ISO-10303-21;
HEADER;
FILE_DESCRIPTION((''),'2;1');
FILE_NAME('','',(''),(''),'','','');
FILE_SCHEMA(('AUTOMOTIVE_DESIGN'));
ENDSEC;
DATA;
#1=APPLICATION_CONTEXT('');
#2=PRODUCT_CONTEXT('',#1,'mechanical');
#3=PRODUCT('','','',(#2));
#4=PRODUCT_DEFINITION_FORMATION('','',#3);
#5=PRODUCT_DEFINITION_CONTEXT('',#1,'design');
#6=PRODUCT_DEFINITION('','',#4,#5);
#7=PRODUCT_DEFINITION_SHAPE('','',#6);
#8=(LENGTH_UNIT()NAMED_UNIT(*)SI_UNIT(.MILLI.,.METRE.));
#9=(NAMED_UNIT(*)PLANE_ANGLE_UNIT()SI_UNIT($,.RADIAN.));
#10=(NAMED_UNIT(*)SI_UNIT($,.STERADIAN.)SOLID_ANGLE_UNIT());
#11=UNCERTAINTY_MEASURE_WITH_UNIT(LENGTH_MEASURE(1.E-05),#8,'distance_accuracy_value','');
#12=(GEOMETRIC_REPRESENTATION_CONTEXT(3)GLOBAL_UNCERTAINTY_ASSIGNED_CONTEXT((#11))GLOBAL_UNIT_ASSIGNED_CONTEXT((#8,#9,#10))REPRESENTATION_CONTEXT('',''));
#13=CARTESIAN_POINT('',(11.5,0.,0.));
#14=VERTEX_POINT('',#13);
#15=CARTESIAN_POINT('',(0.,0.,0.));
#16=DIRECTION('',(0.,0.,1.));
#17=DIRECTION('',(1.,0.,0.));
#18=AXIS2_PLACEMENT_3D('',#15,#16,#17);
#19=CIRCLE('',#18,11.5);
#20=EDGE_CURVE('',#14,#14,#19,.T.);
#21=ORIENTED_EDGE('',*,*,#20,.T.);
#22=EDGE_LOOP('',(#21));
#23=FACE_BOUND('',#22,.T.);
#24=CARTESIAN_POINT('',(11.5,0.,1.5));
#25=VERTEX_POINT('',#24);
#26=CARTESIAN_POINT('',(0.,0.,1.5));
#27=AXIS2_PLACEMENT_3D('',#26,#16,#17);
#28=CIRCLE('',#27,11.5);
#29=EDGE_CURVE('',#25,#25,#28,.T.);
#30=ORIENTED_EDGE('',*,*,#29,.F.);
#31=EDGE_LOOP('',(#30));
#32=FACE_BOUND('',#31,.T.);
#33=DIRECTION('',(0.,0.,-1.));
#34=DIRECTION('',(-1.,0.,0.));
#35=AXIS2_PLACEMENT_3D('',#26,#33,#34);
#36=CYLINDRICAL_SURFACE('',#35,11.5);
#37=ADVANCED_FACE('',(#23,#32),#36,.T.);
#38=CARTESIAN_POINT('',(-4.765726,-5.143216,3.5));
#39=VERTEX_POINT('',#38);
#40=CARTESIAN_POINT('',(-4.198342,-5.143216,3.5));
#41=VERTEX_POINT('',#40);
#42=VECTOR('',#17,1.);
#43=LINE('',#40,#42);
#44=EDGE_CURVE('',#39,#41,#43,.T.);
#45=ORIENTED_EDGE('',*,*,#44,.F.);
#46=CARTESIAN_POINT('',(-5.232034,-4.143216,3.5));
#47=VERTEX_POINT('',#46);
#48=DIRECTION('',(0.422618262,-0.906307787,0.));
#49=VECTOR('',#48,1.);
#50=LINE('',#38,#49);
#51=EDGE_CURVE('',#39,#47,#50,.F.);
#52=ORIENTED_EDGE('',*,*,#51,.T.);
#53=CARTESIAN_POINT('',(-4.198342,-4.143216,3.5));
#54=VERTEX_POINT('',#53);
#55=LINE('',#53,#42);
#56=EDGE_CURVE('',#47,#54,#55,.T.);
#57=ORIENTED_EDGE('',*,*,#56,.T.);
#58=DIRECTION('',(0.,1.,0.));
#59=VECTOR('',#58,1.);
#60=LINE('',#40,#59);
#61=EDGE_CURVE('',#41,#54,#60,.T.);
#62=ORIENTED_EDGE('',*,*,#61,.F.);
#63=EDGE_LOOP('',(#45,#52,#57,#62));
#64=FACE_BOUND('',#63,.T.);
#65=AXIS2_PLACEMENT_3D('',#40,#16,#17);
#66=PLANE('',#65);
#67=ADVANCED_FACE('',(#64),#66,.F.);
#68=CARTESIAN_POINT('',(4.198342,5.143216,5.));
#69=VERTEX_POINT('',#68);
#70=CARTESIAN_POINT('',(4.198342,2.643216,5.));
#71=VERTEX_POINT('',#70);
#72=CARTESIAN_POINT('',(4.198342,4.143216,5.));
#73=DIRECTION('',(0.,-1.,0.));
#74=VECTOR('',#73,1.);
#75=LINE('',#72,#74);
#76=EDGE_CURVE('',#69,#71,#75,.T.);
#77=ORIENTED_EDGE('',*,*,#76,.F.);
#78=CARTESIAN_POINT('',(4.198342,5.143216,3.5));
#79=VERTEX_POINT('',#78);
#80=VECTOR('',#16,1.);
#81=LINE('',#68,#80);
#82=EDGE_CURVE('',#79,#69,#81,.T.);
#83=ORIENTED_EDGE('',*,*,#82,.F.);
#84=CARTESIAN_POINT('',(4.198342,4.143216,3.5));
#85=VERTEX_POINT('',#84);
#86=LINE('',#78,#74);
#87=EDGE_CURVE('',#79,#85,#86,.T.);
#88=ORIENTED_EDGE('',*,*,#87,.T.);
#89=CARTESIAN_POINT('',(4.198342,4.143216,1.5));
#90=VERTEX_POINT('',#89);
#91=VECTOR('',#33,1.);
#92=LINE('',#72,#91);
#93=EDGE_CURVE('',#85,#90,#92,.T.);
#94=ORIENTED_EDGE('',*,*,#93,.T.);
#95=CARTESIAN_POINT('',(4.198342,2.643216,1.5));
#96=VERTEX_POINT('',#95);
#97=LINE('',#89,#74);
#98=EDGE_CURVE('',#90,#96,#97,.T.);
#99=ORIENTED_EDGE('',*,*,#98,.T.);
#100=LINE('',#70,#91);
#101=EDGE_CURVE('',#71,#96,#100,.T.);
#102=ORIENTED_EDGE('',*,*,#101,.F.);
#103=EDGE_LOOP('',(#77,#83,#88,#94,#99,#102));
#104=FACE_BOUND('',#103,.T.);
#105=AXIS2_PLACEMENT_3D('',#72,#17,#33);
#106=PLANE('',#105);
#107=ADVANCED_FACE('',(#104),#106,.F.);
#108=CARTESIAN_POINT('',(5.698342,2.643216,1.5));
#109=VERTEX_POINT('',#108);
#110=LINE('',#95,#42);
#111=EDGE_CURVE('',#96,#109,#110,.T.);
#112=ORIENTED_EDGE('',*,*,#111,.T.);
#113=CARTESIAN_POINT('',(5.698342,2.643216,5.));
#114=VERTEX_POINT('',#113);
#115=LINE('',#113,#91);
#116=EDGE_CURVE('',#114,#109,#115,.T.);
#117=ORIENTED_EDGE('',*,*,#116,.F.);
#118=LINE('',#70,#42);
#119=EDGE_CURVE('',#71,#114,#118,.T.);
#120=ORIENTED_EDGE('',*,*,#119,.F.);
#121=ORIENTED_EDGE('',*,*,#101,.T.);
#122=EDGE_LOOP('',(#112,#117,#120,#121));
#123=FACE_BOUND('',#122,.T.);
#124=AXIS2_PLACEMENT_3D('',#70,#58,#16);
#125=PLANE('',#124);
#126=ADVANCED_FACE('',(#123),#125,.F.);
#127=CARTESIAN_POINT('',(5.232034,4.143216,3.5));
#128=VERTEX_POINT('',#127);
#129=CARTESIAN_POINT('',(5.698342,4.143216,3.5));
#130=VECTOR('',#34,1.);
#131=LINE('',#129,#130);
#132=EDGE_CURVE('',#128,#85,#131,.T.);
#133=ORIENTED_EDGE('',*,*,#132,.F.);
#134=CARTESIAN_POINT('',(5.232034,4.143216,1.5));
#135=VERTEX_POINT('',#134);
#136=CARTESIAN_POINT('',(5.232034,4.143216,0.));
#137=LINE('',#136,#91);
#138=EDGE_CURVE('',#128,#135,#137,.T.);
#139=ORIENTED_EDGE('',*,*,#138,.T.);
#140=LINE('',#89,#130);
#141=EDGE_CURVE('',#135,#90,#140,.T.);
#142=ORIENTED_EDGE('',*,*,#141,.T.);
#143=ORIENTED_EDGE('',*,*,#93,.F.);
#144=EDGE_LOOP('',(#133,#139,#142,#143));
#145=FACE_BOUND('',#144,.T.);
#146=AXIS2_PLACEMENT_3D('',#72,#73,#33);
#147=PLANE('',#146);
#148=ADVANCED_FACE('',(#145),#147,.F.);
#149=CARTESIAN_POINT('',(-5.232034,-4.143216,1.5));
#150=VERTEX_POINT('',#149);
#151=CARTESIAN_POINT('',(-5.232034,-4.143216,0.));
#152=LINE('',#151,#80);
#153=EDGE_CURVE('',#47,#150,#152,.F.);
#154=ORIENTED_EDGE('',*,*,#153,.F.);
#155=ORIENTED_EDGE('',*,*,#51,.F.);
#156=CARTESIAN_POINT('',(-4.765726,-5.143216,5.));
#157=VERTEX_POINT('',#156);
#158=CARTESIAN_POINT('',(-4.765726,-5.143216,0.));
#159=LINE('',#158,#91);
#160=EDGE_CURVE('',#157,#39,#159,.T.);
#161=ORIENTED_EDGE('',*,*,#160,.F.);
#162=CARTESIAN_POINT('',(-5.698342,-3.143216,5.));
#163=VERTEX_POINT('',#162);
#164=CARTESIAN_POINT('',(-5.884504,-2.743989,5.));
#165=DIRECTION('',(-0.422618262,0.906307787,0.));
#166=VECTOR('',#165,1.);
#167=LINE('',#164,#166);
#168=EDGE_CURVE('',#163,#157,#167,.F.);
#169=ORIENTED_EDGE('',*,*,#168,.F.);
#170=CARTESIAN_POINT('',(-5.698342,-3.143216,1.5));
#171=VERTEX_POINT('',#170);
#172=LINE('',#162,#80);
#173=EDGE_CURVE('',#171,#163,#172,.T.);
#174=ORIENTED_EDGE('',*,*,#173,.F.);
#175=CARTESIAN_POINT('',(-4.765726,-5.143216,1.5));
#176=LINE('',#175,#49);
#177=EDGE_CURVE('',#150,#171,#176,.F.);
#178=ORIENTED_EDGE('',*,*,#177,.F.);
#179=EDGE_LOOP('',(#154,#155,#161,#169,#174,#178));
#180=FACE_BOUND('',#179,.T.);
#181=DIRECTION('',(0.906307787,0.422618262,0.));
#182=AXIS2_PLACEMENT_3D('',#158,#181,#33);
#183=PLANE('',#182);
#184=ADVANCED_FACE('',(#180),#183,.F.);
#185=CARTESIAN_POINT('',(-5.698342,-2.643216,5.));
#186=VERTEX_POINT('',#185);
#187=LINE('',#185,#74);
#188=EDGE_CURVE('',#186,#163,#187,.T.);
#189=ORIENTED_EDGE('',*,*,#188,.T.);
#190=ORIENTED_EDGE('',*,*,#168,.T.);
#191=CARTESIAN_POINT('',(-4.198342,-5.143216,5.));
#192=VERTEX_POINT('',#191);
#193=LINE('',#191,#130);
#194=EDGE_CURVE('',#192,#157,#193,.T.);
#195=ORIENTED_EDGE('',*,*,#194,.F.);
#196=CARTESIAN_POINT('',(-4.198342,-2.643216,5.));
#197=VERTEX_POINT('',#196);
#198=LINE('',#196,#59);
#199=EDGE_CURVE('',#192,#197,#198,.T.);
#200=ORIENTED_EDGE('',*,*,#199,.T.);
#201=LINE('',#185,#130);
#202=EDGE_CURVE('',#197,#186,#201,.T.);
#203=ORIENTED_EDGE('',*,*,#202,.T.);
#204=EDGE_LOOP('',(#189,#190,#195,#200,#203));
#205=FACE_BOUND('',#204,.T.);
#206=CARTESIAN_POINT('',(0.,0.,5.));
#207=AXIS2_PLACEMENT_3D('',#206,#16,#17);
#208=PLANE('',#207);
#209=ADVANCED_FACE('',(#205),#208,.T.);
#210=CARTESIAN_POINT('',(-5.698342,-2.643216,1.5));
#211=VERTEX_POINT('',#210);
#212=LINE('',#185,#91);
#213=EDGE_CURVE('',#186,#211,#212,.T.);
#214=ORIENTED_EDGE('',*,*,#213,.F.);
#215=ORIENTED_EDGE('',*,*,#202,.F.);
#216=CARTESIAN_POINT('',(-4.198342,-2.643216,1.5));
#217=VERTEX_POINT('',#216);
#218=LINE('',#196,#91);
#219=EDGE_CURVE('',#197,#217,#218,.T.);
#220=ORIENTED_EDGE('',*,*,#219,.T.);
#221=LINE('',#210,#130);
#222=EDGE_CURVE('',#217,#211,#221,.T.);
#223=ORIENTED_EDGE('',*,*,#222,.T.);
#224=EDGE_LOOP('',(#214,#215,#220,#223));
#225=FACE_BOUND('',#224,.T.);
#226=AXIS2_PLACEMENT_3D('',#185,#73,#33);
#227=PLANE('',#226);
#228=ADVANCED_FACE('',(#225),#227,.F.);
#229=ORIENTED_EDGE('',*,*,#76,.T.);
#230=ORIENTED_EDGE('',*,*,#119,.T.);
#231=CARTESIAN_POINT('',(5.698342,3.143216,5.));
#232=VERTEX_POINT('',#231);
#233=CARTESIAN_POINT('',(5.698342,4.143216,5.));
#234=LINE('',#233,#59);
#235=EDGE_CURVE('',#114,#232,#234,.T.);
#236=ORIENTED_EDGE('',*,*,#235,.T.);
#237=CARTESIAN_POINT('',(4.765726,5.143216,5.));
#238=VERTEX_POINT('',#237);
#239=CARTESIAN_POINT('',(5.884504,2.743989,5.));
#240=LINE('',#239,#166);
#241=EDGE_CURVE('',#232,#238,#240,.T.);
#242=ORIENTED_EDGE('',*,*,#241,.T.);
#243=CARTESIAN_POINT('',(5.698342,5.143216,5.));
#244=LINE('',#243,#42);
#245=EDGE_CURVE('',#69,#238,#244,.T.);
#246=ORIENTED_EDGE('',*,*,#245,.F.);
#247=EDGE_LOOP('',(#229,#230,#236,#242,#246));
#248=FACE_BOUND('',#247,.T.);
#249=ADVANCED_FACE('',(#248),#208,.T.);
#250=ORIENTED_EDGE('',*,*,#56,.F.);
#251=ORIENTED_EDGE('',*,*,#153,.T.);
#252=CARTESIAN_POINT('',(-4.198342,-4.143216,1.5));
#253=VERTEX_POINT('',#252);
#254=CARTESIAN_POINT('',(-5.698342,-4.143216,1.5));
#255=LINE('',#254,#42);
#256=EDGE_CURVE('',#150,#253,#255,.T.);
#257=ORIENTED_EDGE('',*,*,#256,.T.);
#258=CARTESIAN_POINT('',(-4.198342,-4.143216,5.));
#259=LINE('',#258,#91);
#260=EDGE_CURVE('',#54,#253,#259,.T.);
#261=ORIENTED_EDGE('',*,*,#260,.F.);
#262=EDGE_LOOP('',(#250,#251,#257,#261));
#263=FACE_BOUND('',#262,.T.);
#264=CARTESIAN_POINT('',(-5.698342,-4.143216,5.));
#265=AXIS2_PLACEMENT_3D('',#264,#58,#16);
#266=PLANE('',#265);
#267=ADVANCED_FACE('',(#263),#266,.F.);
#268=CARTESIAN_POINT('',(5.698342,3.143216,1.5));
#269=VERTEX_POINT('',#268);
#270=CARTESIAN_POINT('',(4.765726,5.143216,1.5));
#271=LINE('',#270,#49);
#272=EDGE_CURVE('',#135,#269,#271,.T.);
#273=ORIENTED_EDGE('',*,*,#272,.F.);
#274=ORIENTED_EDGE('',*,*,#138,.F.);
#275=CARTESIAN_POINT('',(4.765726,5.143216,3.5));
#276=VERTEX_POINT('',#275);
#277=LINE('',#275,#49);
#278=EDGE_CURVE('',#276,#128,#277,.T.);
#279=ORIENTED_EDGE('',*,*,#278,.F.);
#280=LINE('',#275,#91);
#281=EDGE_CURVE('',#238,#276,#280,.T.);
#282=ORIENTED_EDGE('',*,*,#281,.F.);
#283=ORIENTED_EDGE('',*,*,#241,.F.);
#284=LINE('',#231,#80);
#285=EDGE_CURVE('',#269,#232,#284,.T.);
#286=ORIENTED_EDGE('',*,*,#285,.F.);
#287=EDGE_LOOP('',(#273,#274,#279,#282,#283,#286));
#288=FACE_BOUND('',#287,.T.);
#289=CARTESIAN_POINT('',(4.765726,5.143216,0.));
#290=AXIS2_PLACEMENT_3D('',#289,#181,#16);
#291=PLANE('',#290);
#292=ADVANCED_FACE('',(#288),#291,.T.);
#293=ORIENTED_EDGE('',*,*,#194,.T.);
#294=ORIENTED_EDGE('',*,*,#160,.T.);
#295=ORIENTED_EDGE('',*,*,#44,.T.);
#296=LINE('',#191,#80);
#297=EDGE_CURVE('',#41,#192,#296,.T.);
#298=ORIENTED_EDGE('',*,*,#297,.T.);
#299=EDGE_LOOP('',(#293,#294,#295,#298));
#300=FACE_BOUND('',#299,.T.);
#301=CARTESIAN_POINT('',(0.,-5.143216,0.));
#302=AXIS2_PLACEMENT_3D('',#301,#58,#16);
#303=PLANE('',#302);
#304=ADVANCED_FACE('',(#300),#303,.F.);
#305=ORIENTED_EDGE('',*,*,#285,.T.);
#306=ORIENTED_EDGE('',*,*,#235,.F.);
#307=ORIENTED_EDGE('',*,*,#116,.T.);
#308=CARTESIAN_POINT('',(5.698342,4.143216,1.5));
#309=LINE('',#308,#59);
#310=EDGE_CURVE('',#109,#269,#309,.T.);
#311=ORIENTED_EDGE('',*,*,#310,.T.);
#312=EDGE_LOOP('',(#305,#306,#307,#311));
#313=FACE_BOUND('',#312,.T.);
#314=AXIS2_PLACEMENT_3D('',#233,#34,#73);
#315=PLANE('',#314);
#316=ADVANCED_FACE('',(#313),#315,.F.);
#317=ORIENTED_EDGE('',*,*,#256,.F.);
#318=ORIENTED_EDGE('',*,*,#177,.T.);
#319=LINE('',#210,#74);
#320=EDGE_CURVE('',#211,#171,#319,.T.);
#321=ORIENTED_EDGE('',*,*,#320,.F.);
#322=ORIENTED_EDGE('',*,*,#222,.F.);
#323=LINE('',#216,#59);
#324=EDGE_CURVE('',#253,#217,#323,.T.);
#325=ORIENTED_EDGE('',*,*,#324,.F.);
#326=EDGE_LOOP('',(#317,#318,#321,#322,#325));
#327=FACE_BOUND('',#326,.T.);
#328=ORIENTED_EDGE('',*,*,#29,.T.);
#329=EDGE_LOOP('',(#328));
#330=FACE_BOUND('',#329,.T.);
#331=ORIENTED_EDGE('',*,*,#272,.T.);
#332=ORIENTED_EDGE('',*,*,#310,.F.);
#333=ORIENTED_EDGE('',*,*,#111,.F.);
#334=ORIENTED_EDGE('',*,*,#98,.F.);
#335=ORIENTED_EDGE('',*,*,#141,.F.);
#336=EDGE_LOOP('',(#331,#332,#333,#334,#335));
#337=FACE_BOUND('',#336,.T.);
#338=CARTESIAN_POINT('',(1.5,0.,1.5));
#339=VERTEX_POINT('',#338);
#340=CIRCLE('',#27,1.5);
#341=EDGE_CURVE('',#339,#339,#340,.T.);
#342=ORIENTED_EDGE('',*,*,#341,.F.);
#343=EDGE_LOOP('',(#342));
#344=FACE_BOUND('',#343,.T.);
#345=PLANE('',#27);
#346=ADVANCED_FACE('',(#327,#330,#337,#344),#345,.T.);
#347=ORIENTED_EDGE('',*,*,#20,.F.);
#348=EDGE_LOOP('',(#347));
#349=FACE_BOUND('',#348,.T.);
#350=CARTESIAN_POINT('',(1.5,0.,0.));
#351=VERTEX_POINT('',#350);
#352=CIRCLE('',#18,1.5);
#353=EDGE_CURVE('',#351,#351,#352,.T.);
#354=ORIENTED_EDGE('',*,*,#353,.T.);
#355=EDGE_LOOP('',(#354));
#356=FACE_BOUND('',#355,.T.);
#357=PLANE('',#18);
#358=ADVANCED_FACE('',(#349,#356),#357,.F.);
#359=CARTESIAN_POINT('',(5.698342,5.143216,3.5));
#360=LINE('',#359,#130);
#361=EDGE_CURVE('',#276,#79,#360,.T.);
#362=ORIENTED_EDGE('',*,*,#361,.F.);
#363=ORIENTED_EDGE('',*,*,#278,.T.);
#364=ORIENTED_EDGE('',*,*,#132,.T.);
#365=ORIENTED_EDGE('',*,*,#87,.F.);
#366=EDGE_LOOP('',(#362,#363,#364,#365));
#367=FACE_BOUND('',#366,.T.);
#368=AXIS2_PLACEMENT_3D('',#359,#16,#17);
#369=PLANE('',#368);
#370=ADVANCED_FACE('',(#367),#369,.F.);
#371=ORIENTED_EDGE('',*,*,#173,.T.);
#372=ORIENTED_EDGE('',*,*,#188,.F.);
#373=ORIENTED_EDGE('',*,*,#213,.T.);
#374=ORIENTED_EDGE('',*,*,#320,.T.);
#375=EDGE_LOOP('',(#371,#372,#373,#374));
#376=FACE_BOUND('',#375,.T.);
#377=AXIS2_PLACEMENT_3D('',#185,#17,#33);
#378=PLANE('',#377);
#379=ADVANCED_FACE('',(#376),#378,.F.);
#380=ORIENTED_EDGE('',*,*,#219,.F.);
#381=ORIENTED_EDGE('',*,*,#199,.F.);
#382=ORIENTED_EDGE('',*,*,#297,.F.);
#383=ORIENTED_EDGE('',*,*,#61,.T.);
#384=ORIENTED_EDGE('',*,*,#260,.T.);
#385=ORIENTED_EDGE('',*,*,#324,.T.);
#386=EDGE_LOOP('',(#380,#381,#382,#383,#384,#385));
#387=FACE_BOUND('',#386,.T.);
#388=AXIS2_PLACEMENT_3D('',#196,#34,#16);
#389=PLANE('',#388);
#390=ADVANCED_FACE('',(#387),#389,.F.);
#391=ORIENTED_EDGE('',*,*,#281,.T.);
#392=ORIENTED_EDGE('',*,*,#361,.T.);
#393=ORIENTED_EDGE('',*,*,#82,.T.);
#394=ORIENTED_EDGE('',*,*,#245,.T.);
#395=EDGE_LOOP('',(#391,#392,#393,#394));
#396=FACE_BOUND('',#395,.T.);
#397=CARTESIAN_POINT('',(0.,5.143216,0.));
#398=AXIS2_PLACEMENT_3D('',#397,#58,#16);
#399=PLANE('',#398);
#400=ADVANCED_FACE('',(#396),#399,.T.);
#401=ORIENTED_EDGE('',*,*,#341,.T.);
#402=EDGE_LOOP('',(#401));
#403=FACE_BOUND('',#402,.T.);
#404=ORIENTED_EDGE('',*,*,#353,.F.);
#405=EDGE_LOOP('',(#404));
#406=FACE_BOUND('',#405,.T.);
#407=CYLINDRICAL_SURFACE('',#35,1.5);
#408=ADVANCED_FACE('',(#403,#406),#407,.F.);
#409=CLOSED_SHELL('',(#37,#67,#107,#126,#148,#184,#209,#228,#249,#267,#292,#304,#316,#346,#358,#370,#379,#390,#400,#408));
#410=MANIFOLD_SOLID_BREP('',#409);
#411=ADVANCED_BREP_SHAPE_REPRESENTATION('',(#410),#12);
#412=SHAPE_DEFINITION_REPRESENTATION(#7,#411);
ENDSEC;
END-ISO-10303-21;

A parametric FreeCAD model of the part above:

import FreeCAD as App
import Part
import Sketcher

V = App.Vector


def edges_at(feature, points):
    """Names of the edges that pass closest to the given points."""
    edges = feature.Shape.Edges
    near = lambda p: min(range(len(edges)), key=lambda i: edges[i].distToShape(Part.Vertex(*p))[0])
    return sorted({f"Edge{near(p) + 1}" for p in points})


def add_polygon(sketch, points):
    """Adds a closed chain of lines whose ends are joined by coincident constraints."""
    first, n = sketch.GeometryCount, len(points)
    for a, b in zip(points, points[1:] + points[:1]):
        sketch.addGeometry(Part.LineSegment(App.Vector(*a, 0), App.Vector(*b, 0)), False)
    for i in range(n):
        sketch.addConstraint(Sketcher.Constraint("Coincident", first + i, 2, first + (i + 1) % n, 1))

doc = App.newDocument("Part")
body = doc.addObject("PartDesign::Body", "Body")

# Sketch on XY plane
sketch1 = body.newObject("Sketcher::SketchObject", "Sketch")
sketch1.AttachmentSupport = (doc.getObject("XY_Plane"), [""])
sketch1.MapMode = "FlatFace"
sketch1.addGeometry(Part.Circle(V(0, 0, 0), V(0, 0, 1), 11.5), False)
sketch1.addGeometry(Part.Circle(V(0, 0, 0), V(0, 0, 1), 1.5), False)
sketch1.addConstraint(Sketcher.Constraint("Coincident", 0, 3, -1, 1))
sketch1.addConstraint(Sketcher.Constraint("Coincident", 1, 3, -1, 1))
sketch1.addConstraint(Sketcher.Constraint("Diameter", 0, 23.0))
sketch1.addConstraint(Sketcher.Constraint("Diameter", 1, 3.0))
pad1 = body.newObject("PartDesign::Pad", "Pad")
pad1.Profile = sketch1
pad1.Length = 1.5

# Sketch on XY plane
sketch2 = body.newObject("Sketcher::SketchObject", "Sketch001")
sketch2.AttachmentSupport = (doc.getObject("XY_Plane"), [""])
sketch2.MapMode = "FlatFace"
sketch2.AttachmentOffset = App.Placement(V(0, 0, 1.5), App.Rotation())
add_polygon(sketch2, [(4.2, 4.1), (4.2, 2.6), (5.7, 2.6), (5.7, 4.1)])  # lines 0-3
add_polygon(sketch2, [(-5.7, -2.6), (-5.7, -4.1), (-4.2, -4.1), (-4.2, -2.6)])  # lines 4-7
sketch2.addConstraint(Sketcher.Constraint("Vertical", 0))
sketch2.addConstraint(Sketcher.Constraint("Horizontal", 1))
sketch2.addConstraint(Sketcher.Constraint("Vertical", 2))
sketch2.addConstraint(Sketcher.Constraint("Horizontal", 3))
sketch2.addConstraint(Sketcher.Constraint("Vertical", 4))
sketch2.addConstraint(Sketcher.Constraint("Horizontal", 5))
sketch2.addConstraint(Sketcher.Constraint("Vertical", 6))
sketch2.addConstraint(Sketcher.Constraint("Horizontal", 7))
sketch2.addConstraint(Sketcher.Constraint("Symmetric", 2, 2, 4, 2, -1, 1))
sketch2.addConstraint(Sketcher.Constraint("Symmetric", 0, 2, 6, 2, -1, 1))
sketch2.addConstraint(Sketcher.Constraint("Equal", 7, 0))
sketch2.addConstraint(Sketcher.Constraint("DistanceX", 1, 1, 1, 2, 1.5))
sketch2.addConstraint(Sketcher.Constraint("DistanceX", -1, 1, 0, 2, 4.198342))
sketch2.addConstraint(Sketcher.Constraint("DistanceY", 4, 2, 0, 2, 6.786432))
pad2 = body.newObject("PartDesign::Pad", "Pad001")
pad2.Profile = sketch2
pad2.Length = 3.5

# Sketch on XZ plane
sketch3 = body.newObject("Sketcher::SketchObject", "Sketch002")
sketch3.AttachmentSupport = (doc.getObject("XZ_Plane"), [""])
sketch3.MapMode = "FlatFace"
sketch3.AttachmentOffset = App.Placement(V(0, 0, -4.143216), App.Rotation())
add_polygon(sketch3, [(4.2, 3.5), (4.2, 5), (5.7, 5), (5.7, 3.5)])  # lines 0-3
sketch3.addConstraint(Sketcher.Constraint("Vertical", 0))
sketch3.addConstraint(Sketcher.Constraint("Horizontal", 1))
sketch3.addConstraint(Sketcher.Constraint("Vertical", 2))
sketch3.addConstraint(Sketcher.Constraint("Horizontal", 3))
sketch3.addConstraint(Sketcher.Constraint("Equal", 3, 0))
sketch3.addConstraint(Sketcher.Constraint("DistanceX", 1, 1, 1, 2, 1.5))
sketch3.addConstraint(Sketcher.Constraint("DistanceY", -1, 1, 0, 2, 5.0))
sketch3.addConstraint(Sketcher.Constraint("DistanceX", -1, 1, 0, 2, 4.198342))
pad3 = body.newObject("PartDesign::Pad", "Pad002")
pad3.Profile = sketch3
pad3.Length = 1
pad3.Reversed = True
doc.recompute()

chamfer = body.newObject("PartDesign::Chamfer", "Chamfer")
chamfer.Base = (pad3, edges_at(pad3, [(5.698, 5.143, 4.25)]))
chamfer.ChamferType = "Two distances"
chamfer.Size = 2
chamfer.Size2 = 0.932615
chamfer.FlipDirection = True

# Sketch on XZ plane
sketch4 = body.newObject("Sketcher::SketchObject", "Sketch003")
sketch4.AttachmentSupport = (doc.getObject("XZ_Plane"), [""])
sketch4.MapMode = "FlatFace"
sketch4.AttachmentOffset = App.Placement(V(0, 0, 4.143216), App.Rotation())
add_polygon(sketch4, [(-5.7, 5), (-5.7, 3.5), (-4.2, 3.5), (-4.2, 5)])  # lines 0-3
sketch4.addConstraint(Sketcher.Constraint("Vertical", 0))
sketch4.addConstraint(Sketcher.Constraint("Horizontal", 1))
sketch4.addConstraint(Sketcher.Constraint("Vertical", 2))
sketch4.addConstraint(Sketcher.Constraint("Horizontal", 3))
sketch4.addConstraint(Sketcher.Constraint("Equal", 3, 0))
sketch4.addConstraint(Sketcher.Constraint("DistanceX", 1, 1, 1, 2, 1.5))
sketch4.addConstraint(Sketcher.Constraint("DistanceY", -1, 1, 2, 2, 5.0))
sketch4.addConstraint(Sketcher.Constraint("DistanceX", 0, 2, -1, 1, 5.698342))
pad4 = body.newObject("PartDesign::Pad", "Pad003")
pad4.Profile = sketch4
pad4.Length = 1
doc.recompute()

chamfer2 = body.newObject("PartDesign::Chamfer", "Chamfer001")
chamfer2.Base = (pad4, edges_at(pad4, [(-5.698, -5.143, 4.25)]))
chamfer2.ChamferType = "Two distances"
chamfer2.Size = 2
chamfer2.Size2 = 0.932615
chamfer2.FlipDirection = True

doc.recompute()
